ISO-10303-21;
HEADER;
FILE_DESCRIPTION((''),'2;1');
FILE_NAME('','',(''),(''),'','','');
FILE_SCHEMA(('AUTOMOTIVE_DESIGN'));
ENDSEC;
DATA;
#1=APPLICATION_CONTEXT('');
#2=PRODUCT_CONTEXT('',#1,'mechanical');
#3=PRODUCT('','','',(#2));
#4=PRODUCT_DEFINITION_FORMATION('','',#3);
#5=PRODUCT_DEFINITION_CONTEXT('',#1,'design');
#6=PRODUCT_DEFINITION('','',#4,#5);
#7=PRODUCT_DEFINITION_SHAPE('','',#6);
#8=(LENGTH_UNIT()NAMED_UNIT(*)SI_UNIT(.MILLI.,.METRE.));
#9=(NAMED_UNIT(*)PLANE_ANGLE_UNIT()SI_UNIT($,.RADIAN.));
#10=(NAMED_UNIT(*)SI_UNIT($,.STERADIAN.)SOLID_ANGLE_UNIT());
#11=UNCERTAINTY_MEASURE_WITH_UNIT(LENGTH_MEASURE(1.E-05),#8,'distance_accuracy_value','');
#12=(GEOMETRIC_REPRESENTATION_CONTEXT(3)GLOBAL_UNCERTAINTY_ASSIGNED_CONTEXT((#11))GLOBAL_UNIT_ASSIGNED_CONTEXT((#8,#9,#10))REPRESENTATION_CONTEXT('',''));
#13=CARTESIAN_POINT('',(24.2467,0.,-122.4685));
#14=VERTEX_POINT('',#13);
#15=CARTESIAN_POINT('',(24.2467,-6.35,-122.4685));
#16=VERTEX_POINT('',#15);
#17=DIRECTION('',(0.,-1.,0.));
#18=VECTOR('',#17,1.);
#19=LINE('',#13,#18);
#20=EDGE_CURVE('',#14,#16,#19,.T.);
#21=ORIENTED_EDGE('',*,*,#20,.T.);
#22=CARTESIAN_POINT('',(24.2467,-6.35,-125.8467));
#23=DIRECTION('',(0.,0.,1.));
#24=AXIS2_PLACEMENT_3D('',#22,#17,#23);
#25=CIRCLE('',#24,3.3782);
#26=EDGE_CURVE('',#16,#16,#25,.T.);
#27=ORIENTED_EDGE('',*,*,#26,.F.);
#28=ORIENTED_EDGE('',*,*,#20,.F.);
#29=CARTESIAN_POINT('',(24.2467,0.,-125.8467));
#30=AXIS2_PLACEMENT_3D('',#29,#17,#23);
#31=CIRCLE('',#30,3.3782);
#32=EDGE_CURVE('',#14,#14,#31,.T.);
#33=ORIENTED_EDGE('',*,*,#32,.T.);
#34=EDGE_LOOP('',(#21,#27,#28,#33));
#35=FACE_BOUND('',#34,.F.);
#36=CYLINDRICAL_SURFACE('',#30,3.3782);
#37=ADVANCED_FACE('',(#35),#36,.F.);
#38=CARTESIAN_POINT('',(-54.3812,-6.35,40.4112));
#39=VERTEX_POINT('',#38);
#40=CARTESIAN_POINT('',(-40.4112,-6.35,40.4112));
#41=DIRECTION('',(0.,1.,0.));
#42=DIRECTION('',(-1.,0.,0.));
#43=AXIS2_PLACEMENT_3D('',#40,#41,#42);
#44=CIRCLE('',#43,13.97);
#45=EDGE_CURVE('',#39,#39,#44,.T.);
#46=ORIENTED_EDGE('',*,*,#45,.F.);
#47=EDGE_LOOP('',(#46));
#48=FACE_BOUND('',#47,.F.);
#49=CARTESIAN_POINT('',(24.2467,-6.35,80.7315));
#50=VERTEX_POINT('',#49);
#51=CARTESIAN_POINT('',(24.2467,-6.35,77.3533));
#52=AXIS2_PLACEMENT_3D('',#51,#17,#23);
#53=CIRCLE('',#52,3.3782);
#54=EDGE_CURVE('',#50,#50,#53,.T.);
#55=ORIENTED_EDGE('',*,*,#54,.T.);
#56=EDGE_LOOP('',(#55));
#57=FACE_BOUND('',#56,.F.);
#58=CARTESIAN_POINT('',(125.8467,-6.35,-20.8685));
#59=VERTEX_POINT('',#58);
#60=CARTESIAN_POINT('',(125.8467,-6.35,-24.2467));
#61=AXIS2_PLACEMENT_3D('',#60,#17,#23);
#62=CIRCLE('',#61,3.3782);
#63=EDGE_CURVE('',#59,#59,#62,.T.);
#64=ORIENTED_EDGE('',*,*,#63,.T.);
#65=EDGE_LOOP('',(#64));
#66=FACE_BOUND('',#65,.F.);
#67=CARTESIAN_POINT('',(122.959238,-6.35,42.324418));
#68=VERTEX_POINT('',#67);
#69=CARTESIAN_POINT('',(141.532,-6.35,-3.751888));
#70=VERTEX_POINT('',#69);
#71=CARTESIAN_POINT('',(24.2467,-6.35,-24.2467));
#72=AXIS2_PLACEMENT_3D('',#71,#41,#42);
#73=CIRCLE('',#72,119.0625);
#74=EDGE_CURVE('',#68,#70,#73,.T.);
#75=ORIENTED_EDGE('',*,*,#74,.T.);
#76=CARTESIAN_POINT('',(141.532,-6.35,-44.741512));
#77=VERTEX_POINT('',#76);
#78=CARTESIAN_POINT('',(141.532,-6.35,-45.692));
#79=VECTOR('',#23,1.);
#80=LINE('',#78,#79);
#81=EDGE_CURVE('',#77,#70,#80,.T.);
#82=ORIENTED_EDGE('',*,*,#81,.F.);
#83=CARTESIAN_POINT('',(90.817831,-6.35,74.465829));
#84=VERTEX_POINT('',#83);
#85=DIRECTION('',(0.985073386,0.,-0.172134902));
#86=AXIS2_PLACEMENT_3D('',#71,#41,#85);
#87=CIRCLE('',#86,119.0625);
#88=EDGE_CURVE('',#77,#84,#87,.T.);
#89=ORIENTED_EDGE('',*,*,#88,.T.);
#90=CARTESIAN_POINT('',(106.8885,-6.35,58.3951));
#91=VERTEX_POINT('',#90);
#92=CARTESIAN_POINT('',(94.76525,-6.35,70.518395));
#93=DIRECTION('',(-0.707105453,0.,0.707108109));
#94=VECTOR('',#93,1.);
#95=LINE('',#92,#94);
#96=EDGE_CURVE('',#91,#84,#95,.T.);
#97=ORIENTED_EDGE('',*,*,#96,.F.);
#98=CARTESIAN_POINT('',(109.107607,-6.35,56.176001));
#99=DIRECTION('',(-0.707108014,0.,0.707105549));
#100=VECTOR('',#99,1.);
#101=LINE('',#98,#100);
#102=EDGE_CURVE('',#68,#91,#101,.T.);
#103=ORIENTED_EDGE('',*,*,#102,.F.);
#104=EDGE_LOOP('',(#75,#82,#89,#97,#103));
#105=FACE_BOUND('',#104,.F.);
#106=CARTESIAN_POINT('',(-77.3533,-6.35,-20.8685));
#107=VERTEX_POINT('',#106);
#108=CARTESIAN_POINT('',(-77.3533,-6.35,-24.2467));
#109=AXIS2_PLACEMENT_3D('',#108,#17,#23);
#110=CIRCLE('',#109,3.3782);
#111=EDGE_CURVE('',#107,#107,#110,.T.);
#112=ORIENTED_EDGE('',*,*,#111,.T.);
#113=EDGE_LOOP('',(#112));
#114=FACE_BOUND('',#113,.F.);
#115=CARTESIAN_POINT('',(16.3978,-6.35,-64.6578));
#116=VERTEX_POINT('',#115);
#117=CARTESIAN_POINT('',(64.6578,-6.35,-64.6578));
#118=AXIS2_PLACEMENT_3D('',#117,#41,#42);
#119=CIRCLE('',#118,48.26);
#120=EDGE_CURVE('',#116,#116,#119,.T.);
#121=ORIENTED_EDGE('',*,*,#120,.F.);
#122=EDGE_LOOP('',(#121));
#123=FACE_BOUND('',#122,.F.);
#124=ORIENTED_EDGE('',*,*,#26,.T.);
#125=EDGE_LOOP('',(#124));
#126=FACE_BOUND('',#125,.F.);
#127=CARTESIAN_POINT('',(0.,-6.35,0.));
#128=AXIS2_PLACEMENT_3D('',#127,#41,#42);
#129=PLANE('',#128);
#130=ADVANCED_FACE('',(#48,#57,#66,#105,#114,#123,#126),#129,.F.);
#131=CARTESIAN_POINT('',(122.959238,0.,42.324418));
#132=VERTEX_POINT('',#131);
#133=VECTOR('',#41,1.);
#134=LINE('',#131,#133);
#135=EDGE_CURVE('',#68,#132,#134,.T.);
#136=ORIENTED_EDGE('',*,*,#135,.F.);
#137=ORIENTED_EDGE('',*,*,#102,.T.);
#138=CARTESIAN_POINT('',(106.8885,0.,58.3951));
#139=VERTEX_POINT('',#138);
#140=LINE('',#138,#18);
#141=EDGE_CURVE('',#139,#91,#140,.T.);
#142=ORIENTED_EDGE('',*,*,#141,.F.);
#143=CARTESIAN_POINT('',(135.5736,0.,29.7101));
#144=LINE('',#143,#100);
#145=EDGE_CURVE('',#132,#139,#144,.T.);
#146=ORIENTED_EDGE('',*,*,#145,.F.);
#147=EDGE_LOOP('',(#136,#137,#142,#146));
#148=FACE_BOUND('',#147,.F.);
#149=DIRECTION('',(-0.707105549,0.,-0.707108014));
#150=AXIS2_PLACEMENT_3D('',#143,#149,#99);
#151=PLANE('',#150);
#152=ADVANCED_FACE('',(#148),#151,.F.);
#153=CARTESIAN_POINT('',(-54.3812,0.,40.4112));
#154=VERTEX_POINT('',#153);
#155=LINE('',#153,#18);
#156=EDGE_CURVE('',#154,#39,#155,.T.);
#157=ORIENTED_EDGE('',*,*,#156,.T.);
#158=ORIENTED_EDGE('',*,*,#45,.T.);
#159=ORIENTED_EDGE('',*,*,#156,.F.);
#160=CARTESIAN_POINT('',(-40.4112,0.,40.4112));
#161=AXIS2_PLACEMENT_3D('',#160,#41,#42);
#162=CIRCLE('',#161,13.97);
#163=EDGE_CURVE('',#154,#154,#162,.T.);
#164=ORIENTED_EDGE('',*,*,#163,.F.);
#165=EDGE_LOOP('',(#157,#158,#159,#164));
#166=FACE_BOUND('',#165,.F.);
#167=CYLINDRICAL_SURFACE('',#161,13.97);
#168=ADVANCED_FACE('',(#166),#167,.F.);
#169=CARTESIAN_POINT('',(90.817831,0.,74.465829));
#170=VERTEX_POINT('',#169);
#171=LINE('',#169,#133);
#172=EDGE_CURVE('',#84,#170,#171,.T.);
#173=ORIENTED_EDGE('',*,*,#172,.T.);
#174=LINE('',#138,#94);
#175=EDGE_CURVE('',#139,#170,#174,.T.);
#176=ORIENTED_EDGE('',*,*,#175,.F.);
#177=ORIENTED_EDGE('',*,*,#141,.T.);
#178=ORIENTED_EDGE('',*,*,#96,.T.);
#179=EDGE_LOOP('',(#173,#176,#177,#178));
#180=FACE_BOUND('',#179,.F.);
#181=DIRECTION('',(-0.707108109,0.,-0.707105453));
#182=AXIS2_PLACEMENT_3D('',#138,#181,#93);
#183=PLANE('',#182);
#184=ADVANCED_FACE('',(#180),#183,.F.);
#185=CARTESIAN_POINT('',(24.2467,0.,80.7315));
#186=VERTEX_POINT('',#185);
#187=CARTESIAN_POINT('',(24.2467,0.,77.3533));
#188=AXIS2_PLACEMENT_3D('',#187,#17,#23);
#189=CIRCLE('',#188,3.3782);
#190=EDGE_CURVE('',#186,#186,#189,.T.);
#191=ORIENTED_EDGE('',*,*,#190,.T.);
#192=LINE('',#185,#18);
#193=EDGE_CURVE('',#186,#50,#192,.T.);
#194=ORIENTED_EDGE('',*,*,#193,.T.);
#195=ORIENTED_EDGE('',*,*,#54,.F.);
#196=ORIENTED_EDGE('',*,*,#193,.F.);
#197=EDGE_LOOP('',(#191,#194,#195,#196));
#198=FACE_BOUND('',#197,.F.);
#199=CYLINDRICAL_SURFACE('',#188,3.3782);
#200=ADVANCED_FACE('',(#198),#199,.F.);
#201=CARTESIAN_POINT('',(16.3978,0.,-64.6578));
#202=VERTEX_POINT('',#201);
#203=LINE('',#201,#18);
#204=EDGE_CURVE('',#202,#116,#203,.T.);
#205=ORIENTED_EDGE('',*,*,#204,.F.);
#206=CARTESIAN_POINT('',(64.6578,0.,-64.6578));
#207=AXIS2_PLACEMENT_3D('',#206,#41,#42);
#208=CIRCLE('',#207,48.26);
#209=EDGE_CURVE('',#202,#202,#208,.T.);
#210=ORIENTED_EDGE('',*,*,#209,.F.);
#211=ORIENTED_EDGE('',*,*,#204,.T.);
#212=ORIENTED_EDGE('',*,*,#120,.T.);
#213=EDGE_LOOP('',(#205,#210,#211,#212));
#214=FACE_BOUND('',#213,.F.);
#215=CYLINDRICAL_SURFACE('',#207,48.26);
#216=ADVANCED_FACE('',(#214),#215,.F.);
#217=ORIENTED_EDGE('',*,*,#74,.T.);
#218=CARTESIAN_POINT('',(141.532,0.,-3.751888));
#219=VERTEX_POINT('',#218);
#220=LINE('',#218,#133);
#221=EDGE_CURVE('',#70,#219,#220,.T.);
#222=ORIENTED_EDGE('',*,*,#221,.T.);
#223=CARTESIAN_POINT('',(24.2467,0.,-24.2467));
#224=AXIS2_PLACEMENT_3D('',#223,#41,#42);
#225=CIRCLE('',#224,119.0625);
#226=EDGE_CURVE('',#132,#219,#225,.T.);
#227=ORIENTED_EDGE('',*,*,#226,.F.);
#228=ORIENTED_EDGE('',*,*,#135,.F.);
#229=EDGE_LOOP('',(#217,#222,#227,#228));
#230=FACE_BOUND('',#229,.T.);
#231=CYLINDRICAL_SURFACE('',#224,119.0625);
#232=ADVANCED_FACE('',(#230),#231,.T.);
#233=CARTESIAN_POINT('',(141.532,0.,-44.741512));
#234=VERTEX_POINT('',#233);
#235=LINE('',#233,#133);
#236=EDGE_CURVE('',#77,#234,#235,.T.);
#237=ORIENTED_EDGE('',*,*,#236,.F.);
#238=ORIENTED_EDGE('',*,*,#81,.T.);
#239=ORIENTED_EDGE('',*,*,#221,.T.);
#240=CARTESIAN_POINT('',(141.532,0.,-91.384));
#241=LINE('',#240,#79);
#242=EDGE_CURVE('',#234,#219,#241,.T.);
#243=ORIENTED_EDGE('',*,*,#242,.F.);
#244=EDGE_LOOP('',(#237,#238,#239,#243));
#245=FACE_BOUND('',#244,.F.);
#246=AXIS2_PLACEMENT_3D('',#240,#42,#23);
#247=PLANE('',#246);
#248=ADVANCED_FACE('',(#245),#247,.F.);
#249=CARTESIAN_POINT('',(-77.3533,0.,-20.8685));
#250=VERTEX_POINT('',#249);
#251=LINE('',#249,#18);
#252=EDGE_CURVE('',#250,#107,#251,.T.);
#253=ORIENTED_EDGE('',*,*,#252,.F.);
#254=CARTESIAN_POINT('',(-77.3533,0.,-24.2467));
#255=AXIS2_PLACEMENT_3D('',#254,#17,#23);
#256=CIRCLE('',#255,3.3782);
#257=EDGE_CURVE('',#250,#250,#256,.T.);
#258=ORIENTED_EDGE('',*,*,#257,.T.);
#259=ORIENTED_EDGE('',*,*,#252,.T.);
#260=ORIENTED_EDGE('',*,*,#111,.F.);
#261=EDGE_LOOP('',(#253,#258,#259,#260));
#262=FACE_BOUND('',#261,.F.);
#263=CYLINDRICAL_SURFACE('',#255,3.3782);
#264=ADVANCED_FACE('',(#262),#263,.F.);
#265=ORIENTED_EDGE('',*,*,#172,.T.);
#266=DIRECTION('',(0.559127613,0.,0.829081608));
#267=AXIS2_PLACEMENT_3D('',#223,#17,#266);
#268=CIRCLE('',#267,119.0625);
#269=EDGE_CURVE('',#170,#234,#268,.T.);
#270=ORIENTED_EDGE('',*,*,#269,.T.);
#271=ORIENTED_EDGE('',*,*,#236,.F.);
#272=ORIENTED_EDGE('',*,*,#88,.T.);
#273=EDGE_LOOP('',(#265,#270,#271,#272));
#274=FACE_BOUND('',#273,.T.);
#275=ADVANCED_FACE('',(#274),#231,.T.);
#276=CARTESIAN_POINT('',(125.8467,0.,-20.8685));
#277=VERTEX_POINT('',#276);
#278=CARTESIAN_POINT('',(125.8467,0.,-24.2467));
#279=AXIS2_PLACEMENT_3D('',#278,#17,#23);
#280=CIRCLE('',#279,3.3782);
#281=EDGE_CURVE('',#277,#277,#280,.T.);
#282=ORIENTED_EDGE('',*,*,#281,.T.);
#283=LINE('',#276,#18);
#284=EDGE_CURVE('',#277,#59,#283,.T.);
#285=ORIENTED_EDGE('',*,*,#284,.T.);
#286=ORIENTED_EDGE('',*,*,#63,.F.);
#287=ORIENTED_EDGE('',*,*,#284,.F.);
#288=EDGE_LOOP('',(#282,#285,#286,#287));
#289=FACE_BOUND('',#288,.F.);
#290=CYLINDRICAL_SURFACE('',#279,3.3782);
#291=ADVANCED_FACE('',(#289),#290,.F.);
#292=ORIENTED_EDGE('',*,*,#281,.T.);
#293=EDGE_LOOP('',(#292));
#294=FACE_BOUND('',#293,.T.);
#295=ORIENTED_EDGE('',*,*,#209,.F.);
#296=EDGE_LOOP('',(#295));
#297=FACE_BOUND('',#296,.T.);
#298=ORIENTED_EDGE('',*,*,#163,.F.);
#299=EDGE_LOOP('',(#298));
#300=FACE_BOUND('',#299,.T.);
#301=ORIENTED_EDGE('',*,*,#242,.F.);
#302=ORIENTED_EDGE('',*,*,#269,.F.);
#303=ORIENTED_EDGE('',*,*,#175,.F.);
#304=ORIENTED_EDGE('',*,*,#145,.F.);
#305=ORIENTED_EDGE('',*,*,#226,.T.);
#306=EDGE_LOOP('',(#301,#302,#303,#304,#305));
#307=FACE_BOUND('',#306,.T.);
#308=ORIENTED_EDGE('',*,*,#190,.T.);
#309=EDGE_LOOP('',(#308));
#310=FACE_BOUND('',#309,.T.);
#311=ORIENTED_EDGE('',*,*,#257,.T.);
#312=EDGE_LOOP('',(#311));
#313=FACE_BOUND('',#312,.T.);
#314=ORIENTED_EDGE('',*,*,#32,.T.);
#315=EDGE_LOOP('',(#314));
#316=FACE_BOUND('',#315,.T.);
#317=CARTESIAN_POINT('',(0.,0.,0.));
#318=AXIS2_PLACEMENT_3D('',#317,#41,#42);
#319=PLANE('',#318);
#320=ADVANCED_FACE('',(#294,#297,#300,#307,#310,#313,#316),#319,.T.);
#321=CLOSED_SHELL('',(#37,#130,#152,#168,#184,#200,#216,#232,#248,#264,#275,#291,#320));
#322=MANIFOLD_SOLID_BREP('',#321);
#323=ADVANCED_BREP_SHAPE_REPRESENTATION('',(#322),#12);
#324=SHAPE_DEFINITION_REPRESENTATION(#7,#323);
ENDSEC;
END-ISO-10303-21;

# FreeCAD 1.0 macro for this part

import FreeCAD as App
import Part
import Sketcher
from FreeCAD import Vector
Q = App.Units.Quantity

doc = App.newDocument("Part")
body = doc.addObject("PartDesign::Body", "Body")

sketch1 = body.newObject("Sketcher::SketchObject", "Sketch")
sketch1.AttachmentSupport = (doc.getObject("XZ_Plane"), [""])
sketch1.MapMode = "FlatFace"
sketch1.addGeometry(Part.Circle(Vector(24.2467, -24.2467, 0), Vector(0, 0, 1), 119.0625), False)
sketch1.addConstraint([
    Sketcher.Constraint("Diameter", 0, Q("9.375 in")),
    Sketcher.Constraint("DistanceX", -1, 1, 0, 3, Q("0.9546 in")),
    Sketcher.Constraint("DistanceY", 0, 3, -1, 1, Q("0.9546 in")),
])
pad1 = body.newObject("PartDesign::Pad", "Pad")
pad1.Profile = sketch1
pad1.Length = Q("0.25 in")

sketch2 = body.newObject("Sketcher::SketchObject", "Sketch001")
sketch2.AttachmentSupport = (doc.getObject("XZ_Plane"), [""])
sketch2.MapMode = "FlatFace"
sketch2.addGeometry([
    Part.Circle(Vector(64.6578, -64.6578, 0), Vector(0, 0, 1), 48.26),
    Part.Circle(Vector(-40.4112, 40.4112, 0), Vector(0, 0, 1), 13.97),
], False)
sketch2.addConstraint([
    Sketcher.Constraint("Diameter", 0, Q("3.8 in")),
    Sketcher.Constraint("Diameter", 1, Q("1.1 in")),
    Sketcher.Constraint("DistanceX", 1, 3, -1, 1, Q("1.591 in")),
    Sketcher.Constraint("DistanceY", -1, 1, 1, 3, Q("1.591 in")),
    Sketcher.Constraint("DistanceX", -1, 1, 0, 3, 64.6578),
    Sketcher.Constraint("DistanceY", 0, 3, -1, 1, 64.6578),
])
pocket1 = body.newObject("PartDesign::Pocket", "Pocket")
pocket1.Profile = sketch2
pocket1.Length = Q("0.25 in")
pocket1.Reversed = True

sketch3 = body.newObject("Sketcher::SketchObject", "Sketch002")
sketch3.AttachmentSupport = (doc.getObject("XZ_Plane"), [""])
sketch3.MapMode = "FlatFace"
sketch3.addGeometry([
    Part.Circle(Vector(-77.3533, -24.2467, 0), Vector(0, 0, 1), 3.3782),
    Part.Circle(Vector(125.8467, -24.2467, 0), Vector(0, 0, 1), 3.3782),
    Part.Circle(Vector(24.2467, 77.3533, 0), Vector(0, 0, 1), 3.3782),
    Part.Circle(Vector(24.2467, -125.8467, 0), Vector(0, 0, 1), 3.3782),
], False)
sketch3.addConstraint([
    Sketcher.Constraint("Equal", 0, 1),
    Sketcher.Constraint("Equal", 1, 2),
    Sketcher.Constraint("Equal", 2, 3),
    Sketcher.Constraint("Horizontal", 0, 3, 1, 3),
    Sketcher.Constraint("Vertical", 2, 3, 3, 3),
    Sketcher.Constraint("Diameter", 0, Q("0.266 in")),
    Sketcher.Constraint("DistanceX", 0, 3, 1, 3, Q("8 in")),
    Sketcher.Constraint("DistanceX", 0, 3, 2, 3, Q("4 in")),
    Sketcher.Constraint("DistanceY", 0, 3, 2, 3, Q("4 in")),
    Sketcher.Constraint("DistanceY", 3, 3, 0, 3, Q("4 in")),
    Sketcher.Constraint("DistanceX", 0, 3, -1, 1, Q("3.0454 in")),
    Sketcher.Constraint("DistanceY", 0, 3, -1, 1, Q("0.9546 in")),
])
doc.recompute()
hole = body.newObject("PartDesign::Hole", "Hole")
hole.Profile = sketch3
hole.ThreadType = "None"
hole.Diameter = Q("0.266 in")
hole.DepthType = "ThroughAll"
hole.Reversed = True

sketch4 = body.newObject("Sketcher::SketchObject", "Sketch003")
sketch4.AttachmentSupport = (doc.getObject("XZ_Plane"), [""])
sketch4.MapMode = "FlatFace"
sketch4.addGeometry([
    Part.LineSegment(Vector(141.532, -91.384, 0), Vector(141.532, 25.7891, 0)),
    Part.LineSegment(Vector(141.532, 25.7891, 0), Vector(149.2071, 25.7891, 0)),
    Part.LineSegment(Vector(149.2071, 25.7891, 0), Vector(149.2071, -91.384, 0)),
    Part.LineSegment(Vector(149.2071, -91.384, 0), Vector(141.532, -91.384, 0)),
    Part.LineSegment(Vector(135.5736, 29.7101, 0), Vector(106.8885, 58.3951, 0)),
    Part.LineSegment(Vector(106.8885, 58.3951, 0), Vector(80.2638, 85.0199, 0)),
    Part.LineSegment(Vector(80.2638, 85.0199, 0), Vector(90.0598, 94.8158, 0)),
    Part.LineSegment(Vector(90.0598, 94.8158, 0), Vector(145.3695, 39.506, 0)),
    Part.LineSegment(Vector(145.3695, 39.506, 0), Vector(135.5736, 29.7101, 0)),
], False)
sketch4.addConstraint([
    Sketcher.Constraint("Coincident", 0, 2, 1, 1),
    Sketcher.Constraint("Coincident", 1, 2, 2, 1),
    Sketcher.Constraint("Coincident", 2, 2, 3, 1),
    Sketcher.Constraint("Coincident", 3, 2, 0, 1),
    Sketcher.Constraint("Coincident", 4, 2, 5, 1),
    Sketcher.Constraint("Coincident", 5, 2, 6, 1),
    Sketcher.Constraint("Coincident", 6, 2, 7, 1),
    Sketcher.Constraint("Coincident", 7, 2, 8, 1),
    Sketcher.Constraint("Coincident", 8, 2, 4, 1),
    Sketcher.Constraint("Vertical", 0),
    Sketcher.Constraint("Horizontal", 1),
    Sketcher.Constraint("Vertical", 2),
    Sketcher.Constraint("Horizontal", 3),
    Sketcher.Constraint("Parallel", 4, 5),
    Sketcher.Constraint("Perpendicular", 5, 6),
    Sketcher.Constraint("Perpendicular", 6, 7),
    Sketcher.Constraint("Perpendicular", 7, 8),
    Sketcher.Constraint("Angle", 6, Q("44.9997 deg")),
    Sketcher.Constraint("DistanceX", -1, 1, 5, 2, Q("3.16 in")),
    Sketcher.Constraint("DistanceX", 4, 2, 7, 2, Q("1.515 in")),
    Sketcher.Constraint("Distance", 5, Q("1.4824 in")),
    Sketcher.Constraint("DistanceX", 1, 1, 1, 2, 7.675),
    Sketcher.Constraint("DistanceY", 0, 1, 0, 2, Q("4.6131102 in")),
    Sketcher.Constraint("DistanceX", -1, 1, 1, 2, Q("5.8743 in")),
    Sketcher.Constraint("DistanceY", 2, 2, -1, 1, Q("3.5978 in")),
    Sketcher.Constraint("DistanceY", -1, 1, 6, 2, Q("3.7329 in")),
    Sketcher.Constraint("DistanceY", 0, 2, 4, 2, Q("1.2837 in")),
])
pocket2 = body.newObject("PartDesign::Pocket", "Pocket001")
pocket2.Profile = sketch4
pocket2.Length = Q("1.75 in")
pocket2.Reversed = True

doc.recompute()
